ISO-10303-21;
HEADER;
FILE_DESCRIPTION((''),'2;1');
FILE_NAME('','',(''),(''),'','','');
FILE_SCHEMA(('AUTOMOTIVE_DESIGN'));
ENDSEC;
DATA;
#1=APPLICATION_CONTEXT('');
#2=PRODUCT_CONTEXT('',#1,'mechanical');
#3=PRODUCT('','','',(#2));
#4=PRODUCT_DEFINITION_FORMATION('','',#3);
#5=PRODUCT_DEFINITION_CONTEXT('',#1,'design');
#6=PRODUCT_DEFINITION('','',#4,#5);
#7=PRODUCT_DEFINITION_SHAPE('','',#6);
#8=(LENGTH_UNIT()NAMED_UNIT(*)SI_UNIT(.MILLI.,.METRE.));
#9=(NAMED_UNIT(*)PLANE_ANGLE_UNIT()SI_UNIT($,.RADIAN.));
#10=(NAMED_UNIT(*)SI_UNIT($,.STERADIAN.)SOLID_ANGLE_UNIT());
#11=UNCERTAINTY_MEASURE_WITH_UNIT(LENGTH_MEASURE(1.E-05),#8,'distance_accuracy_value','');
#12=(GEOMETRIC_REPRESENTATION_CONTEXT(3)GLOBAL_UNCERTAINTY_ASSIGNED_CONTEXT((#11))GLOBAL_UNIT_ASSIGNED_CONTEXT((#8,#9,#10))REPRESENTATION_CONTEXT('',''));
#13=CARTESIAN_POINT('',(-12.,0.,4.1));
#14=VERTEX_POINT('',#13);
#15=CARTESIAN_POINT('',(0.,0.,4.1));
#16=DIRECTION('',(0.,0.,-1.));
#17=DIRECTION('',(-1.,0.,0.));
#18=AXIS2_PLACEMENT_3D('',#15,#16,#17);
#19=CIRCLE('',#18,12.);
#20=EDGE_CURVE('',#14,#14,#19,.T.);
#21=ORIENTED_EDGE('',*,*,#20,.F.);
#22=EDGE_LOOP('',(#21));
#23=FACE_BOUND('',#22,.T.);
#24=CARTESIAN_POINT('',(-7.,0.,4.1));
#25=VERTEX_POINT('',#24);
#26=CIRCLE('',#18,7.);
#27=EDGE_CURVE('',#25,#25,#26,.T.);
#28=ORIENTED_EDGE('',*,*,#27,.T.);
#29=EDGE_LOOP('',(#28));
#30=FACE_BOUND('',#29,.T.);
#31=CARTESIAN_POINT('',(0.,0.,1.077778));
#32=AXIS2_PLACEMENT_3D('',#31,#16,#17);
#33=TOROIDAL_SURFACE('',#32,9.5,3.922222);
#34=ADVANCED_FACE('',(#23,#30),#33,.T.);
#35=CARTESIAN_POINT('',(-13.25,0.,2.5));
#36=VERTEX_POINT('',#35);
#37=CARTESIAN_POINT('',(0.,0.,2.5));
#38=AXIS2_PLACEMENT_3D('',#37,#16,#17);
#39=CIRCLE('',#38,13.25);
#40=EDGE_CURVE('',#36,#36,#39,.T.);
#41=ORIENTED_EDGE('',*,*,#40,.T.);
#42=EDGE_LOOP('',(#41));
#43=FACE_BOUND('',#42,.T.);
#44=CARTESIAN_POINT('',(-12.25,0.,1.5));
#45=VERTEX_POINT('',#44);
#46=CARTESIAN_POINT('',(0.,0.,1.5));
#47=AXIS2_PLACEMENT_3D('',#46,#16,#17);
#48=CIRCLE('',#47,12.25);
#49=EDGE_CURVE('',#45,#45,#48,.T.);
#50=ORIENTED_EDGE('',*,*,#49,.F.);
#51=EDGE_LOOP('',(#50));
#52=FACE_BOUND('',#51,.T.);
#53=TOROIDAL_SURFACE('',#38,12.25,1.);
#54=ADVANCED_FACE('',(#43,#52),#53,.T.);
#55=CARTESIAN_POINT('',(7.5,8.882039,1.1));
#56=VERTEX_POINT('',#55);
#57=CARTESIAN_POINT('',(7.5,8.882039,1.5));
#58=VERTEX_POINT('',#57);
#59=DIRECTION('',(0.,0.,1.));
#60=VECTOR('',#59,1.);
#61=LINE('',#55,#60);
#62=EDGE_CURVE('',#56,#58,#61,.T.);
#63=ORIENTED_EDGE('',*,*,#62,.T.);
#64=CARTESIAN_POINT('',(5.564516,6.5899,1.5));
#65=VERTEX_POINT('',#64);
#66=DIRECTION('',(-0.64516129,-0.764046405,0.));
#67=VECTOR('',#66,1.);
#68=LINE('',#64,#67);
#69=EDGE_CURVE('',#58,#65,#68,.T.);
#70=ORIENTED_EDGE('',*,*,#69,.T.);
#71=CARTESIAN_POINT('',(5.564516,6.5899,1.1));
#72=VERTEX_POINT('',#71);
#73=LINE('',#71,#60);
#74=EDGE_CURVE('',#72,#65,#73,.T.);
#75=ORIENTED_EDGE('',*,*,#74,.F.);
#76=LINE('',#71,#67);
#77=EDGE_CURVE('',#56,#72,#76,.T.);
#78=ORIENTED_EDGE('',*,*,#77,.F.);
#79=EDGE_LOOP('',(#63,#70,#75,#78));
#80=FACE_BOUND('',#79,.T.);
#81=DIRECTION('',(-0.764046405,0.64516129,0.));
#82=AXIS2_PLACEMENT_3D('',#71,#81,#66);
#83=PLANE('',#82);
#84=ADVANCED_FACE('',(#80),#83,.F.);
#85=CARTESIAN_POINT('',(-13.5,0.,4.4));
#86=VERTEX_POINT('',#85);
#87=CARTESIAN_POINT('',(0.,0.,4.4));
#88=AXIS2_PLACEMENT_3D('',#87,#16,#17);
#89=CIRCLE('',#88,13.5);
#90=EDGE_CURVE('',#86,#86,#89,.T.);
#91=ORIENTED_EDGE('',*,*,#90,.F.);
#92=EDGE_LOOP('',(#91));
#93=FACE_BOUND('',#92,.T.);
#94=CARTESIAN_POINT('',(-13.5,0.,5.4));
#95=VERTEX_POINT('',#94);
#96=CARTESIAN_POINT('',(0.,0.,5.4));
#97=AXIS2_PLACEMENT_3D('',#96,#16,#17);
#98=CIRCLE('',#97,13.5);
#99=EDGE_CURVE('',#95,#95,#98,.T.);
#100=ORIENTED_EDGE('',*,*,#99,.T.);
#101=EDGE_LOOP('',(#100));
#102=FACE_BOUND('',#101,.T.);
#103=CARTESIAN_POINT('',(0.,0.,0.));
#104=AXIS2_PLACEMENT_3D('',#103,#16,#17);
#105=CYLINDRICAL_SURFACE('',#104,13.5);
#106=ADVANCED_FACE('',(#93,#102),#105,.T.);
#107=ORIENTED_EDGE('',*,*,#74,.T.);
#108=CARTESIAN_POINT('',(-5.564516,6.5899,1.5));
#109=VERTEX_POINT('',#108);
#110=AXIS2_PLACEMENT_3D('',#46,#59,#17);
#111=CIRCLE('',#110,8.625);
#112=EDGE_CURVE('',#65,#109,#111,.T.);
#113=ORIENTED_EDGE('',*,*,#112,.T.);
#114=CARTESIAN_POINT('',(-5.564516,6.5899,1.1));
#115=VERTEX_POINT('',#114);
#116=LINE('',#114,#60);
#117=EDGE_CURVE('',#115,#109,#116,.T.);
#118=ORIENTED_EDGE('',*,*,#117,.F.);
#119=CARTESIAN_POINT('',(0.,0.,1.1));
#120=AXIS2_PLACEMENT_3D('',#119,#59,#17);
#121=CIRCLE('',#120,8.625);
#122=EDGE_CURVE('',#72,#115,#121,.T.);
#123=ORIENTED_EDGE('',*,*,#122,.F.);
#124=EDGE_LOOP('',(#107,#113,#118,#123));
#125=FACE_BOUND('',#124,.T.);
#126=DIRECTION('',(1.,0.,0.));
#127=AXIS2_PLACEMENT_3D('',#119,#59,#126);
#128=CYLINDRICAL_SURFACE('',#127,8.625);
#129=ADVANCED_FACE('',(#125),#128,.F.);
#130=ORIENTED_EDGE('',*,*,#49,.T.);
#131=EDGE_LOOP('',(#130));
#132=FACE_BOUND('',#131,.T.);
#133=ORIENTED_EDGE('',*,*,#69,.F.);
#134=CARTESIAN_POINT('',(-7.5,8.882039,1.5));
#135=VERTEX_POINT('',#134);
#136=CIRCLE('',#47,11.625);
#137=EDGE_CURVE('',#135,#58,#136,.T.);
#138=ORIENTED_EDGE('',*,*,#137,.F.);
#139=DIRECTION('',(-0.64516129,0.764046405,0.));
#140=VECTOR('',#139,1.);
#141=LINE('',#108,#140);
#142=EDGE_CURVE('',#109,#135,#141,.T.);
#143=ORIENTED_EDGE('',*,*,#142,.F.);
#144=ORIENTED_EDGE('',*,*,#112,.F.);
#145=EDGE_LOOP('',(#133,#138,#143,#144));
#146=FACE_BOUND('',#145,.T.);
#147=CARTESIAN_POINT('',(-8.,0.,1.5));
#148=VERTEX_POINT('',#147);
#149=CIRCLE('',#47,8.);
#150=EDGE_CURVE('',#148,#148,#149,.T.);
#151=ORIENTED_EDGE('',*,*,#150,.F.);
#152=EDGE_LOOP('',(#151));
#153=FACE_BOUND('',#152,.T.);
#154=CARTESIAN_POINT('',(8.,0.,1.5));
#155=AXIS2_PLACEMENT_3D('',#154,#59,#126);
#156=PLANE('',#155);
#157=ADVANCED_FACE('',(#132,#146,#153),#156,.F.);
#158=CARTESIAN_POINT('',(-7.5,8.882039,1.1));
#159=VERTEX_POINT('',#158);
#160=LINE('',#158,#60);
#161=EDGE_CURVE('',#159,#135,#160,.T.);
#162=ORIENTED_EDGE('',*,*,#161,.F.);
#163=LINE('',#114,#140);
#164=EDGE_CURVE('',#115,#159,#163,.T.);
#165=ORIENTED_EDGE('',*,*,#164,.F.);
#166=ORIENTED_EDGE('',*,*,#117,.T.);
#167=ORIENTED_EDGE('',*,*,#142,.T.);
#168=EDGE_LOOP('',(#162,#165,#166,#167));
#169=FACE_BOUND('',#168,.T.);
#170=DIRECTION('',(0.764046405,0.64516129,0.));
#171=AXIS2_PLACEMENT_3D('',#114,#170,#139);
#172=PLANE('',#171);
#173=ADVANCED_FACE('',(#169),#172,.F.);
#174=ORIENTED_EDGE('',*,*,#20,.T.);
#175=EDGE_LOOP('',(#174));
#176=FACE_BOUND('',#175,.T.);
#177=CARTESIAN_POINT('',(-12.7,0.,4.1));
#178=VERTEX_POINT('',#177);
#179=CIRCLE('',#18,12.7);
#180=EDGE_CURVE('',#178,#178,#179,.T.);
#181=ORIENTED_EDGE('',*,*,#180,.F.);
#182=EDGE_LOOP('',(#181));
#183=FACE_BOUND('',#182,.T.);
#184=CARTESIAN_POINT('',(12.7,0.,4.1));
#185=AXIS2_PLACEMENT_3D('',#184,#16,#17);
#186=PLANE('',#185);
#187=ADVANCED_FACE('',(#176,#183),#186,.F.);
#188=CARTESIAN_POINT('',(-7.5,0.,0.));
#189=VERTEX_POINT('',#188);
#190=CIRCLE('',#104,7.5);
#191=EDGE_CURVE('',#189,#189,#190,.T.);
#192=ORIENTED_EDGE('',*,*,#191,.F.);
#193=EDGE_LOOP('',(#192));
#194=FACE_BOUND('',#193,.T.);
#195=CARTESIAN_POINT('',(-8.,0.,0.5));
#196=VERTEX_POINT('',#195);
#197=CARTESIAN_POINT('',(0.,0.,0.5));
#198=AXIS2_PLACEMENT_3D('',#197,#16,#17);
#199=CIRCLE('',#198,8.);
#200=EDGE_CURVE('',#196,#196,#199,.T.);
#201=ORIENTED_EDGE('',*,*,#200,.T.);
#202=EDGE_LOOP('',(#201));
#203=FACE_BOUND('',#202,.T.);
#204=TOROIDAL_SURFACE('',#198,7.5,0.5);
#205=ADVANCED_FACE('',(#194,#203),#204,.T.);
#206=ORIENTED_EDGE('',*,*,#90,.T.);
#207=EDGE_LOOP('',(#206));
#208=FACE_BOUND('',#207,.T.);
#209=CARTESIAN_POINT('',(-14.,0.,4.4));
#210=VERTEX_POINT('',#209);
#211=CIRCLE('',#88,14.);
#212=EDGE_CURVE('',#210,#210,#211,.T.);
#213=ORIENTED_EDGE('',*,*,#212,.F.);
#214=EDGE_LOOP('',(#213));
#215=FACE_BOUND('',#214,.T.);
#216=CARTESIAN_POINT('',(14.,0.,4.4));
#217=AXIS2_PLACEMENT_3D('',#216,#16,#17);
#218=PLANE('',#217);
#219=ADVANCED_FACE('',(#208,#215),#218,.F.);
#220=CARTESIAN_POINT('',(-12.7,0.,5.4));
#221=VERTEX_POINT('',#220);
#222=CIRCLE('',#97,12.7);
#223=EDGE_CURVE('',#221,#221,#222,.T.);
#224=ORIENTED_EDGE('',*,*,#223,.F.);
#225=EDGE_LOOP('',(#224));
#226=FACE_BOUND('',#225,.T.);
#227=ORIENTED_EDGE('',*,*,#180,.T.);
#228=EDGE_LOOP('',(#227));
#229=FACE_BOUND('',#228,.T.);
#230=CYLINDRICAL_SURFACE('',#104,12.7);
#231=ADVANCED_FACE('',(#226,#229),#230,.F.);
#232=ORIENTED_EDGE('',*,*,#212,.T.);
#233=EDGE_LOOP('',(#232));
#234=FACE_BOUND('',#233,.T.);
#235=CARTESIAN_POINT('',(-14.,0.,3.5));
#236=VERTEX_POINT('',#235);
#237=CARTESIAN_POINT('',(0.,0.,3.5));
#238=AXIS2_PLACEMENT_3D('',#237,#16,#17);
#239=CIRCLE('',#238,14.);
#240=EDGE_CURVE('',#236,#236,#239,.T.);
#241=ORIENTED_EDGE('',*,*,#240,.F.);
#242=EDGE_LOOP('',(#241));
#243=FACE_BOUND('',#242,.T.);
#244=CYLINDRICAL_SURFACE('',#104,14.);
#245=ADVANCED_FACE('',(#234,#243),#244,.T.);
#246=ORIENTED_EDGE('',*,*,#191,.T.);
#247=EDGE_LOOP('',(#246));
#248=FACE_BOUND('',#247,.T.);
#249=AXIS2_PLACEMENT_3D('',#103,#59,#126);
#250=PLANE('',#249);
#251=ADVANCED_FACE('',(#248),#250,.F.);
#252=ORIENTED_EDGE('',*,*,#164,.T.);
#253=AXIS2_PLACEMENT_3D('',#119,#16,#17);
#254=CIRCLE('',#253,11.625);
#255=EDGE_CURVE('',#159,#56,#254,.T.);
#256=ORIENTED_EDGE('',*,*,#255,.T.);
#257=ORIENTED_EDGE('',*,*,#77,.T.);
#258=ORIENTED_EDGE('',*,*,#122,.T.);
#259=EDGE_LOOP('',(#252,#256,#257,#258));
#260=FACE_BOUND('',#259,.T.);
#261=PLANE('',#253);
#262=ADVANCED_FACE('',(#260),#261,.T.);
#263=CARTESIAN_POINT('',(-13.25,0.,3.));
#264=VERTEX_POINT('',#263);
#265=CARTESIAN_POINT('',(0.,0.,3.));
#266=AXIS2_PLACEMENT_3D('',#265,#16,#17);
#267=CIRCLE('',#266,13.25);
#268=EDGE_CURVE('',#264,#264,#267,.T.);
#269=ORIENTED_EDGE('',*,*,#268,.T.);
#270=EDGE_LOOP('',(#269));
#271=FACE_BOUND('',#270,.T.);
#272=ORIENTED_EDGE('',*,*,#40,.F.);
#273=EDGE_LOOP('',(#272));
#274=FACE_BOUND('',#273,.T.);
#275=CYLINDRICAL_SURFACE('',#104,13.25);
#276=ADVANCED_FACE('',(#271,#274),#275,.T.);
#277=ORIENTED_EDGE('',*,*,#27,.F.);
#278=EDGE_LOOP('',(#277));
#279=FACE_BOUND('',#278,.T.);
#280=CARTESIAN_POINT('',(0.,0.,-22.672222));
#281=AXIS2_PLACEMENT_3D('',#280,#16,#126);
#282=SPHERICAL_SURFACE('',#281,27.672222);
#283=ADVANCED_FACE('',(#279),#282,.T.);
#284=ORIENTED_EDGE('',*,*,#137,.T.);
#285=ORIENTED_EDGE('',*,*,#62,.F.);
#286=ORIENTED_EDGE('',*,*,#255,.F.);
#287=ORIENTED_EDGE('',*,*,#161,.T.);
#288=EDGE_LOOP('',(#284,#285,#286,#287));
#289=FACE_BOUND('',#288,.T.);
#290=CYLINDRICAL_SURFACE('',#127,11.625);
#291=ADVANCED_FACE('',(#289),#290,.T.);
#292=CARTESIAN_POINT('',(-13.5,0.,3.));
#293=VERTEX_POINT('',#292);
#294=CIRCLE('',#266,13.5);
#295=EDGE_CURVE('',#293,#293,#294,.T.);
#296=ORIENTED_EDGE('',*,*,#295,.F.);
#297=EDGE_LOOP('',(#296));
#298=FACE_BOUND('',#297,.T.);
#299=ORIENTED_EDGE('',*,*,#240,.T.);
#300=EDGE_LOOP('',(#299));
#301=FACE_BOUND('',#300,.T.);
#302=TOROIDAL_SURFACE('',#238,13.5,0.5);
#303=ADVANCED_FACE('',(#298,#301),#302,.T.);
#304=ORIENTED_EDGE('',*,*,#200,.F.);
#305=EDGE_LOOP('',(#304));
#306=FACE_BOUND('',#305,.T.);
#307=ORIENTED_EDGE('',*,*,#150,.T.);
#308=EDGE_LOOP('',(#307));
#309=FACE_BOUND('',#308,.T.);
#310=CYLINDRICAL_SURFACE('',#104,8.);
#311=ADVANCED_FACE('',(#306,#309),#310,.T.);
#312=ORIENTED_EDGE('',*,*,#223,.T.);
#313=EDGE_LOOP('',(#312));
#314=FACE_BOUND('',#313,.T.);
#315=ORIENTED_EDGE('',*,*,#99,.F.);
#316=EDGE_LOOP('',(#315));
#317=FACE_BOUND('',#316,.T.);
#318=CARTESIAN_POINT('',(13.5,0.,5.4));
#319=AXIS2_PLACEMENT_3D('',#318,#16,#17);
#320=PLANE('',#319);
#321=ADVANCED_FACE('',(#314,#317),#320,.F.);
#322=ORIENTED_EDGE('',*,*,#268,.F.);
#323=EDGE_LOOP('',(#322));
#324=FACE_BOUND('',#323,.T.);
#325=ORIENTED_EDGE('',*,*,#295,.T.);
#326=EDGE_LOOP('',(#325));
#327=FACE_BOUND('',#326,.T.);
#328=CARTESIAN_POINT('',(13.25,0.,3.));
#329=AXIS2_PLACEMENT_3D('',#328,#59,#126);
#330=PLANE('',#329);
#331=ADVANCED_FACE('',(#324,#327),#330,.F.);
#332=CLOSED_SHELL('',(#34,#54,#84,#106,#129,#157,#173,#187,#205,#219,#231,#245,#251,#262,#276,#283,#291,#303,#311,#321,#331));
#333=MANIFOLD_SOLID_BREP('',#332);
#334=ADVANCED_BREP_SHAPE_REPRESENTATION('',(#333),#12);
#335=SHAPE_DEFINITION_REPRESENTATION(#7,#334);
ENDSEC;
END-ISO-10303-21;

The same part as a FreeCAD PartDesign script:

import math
import FreeCAD as App
import Part
import Sketcher
from FreeCAD import Vector
Q = App.Units.Quantity

doc = App.newDocument("Part")
body = doc.addObject("PartDesign::Body", "Body")

sketch1 = body.newObject("Sketcher::SketchObject", "Sketch")
sketch1.AttachmentSupport = (doc.getObject("XZ_Plane"), [""])
sketch1.MapMode = "FlatFace"
sketch1.addGeometry([
    Part.LineSegment(Vector(7.5, 0, 0), Vector(0, 0, 0)),
    Part.LineSegment(Vector(0, 0, 0), Vector(0, 5, 0)),
    Part.ArcOfCircle(Part.Circle(Vector(0, -22.67, 0), Vector(0, 0, 1), 27.67), math.radians(75.35), math.radians(90)),
    Part.ArcOfCircle(Part.Circle(Vector(9.5, 1.08, 0), Vector(0, 0, 1), 3.92), math.radians(50), math.radians(130)),
    Part.LineSegment(Vector(12, 4.1, 0), Vector(12.7, 4.1, 0)),
    Part.LineSegment(Vector(12.7, 4.1, 0), Vector(12.7, 5.4, 0)),
    Part.LineSegment(Vector(12.7, 5.4, 0), Vector(13.5, 5.4, 0)),
    Part.LineSegment(Vector(13.5, 5.4, 0), Vector(13.5, 4.4, 0)),
    Part.LineSegment(Vector(13.5, 4.4, 0), Vector(14, 4.4, 0)),
    Part.LineSegment(Vector(14, 4.4, 0), Vector(14, 3.5, 0)),
    Part.ArcOfCircle(Part.Circle(Vector(13.5, 3.5, 0), Vector(0, 0, 1), 0.5), math.radians(-90), math.radians(0)),
    Part.LineSegment(Vector(13.5, 3, 0), Vector(13.25, 3, 0)),
    Part.LineSegment(Vector(13.25, 3, 0), Vector(13.25, 2.5, 0)),
    Part.ArcOfCircle(Part.Circle(Vector(12.25, 2.5, 0), Vector(0, 0, 1), 1), math.radians(-90), math.radians(0)),
    Part.LineSegment(Vector(12.25, 1.5, 0), Vector(8, 1.5, 0)),
    Part.LineSegment(Vector(8, 1.5, 0), Vector(8, 0.5, 0)),
    Part.ArcOfCircle(Part.Circle(Vector(7.5, 0.5, 0), Vector(0, 0, 1), 0.5), math.radians(-90), math.radians(0)),
], False)
sketch1.addConstraint([
    Sketcher.Constraint("Coincident", 0, 2, 1, 1),
    Sketcher.Constraint("Coincident", 1, 2, 2, 2),
    Sketcher.Constraint("Coincident", 2, 1, 3, 2),
    Sketcher.Constraint("Coincident", 3, 1, 4, 1),
    Sketcher.Constraint("Coincident", 4, 2, 5, 1),
    Sketcher.Constraint("Coincident", 5, 2, 6, 1),
    Sketcher.Constraint("Coincident", 6, 2, 7, 1),
    Sketcher.Constraint("Coincident", 7, 2, 8, 1),
    Sketcher.Constraint("Coincident", 8, 2, 9, 1),
    Sketcher.Constraint("Tangent", 9, 2, 10, 2),
    Sketcher.Constraint("Tangent", 10, 1, 11, 1),
    Sketcher.Constraint("Coincident", 11, 2, 12, 1),
    Sketcher.Constraint("Tangent", 12, 2, 13, 2),
    Sketcher.Constraint("Tangent", 13, 1, 14, 1),
    Sketcher.Constraint("Coincident", 14, 2, 15, 1),
    Sketcher.Constraint("Tangent", 15, 2, 16, 2),
    Sketcher.Constraint("Tangent", 16, 1, 0, 1),
    Sketcher.Constraint("Horizontal", 0),
    Sketcher.Constraint("Vertical", 1),
    Sketcher.Constraint("Horizontal", 4),
    Sketcher.Constraint("Vertical", 5),
    Sketcher.Constraint("Horizontal", 6),
    Sketcher.Constraint("Vertical", 7),
    Sketcher.Constraint("Horizontal", 8),
    Sketcher.Constraint("Vertical", 9),
    Sketcher.Constraint("Horizontal", 11),
    Sketcher.Constraint("Vertical", 12),
    Sketcher.Constraint("Horizontal", 14),
    Sketcher.Constraint("Vertical", 15),
    Sketcher.Constraint("Coincident", 0, 2, -1, 1),
    Sketcher.Constraint("Equal", 10, 16),
    Sketcher.Constraint("PointOnObject", 2, 3, -2),
    Sketcher.Constraint("Horizontal", 2, 1, 3, 1),
    Sketcher.Constraint("Vertical", 10, 3, 6, 2),
    Sketcher.Constraint("Equal", 8, 12),
    Sketcher.Constraint("Equal", 7, 15),
    Sketcher.Constraint("Radius", 13, Q("1 mm")),
    Sketcher.Constraint("Radius", 10, Q("0.5 mm")),
    Sketcher.Constraint("DistanceY", 1, 1, 1, 2, Q("5 mm")),
    Sketcher.Constraint("DistanceY", 7, 2, 7, 1, Q("1 mm")),
    Sketcher.Constraint("DistanceX", 0, 2, 0, 1, Q("7.5 mm")),
    Sketcher.Constraint("DistanceX", 4, 1, 4, 2, Q("0.7 mm")),
    Sketcher.Constraint("DistanceX", 6, 1, 6, 2, Q("0.8 mm")),
    Sketcher.Constraint("DistanceY", 5, 1, 5, 2, Q("1.3 mm")),
    Sketcher.Constraint("DistanceY", 9, 2, 9, 1, Q("0.9 mm")),
    Sketcher.Constraint("DistanceX", -1, 1, 2, 1, Q("7 mm")),
    Sketcher.Constraint("DistanceX", -1, 1, 3, 1, Q("12 mm")),
    Sketcher.Constraint("DistanceX", 11, 2, 11, 1, Q("0.25 mm")),
    Sketcher.Constraint("DistanceY", 2, 3, 3, 3, Q("23.75 mm")),
])
revolution = body.newObject("PartDesign::Revolution", "Revolution")
revolution.Profile = sketch1
revolution.ReferenceAxis = (sketch1, ["V_Axis"])
revolution.Angle = 360

sketch2 = body.newObject("Sketcher::SketchObject", "Sketch001")
sketch2.AttachmentSupport = (doc.getObject("XY_Plane"), [""])
sketch2.MapMode = "FlatFace"
sketch2.AttachmentOffset = App.Placement(Vector(0, 0, 1.5), App.Rotation())
sketch2.addGeometry([
    Part.LineSegment(Vector(7.5, 8.9, 0), Vector(5.6, 6.6, 0)),
    Part.ArcOfCircle(Part.Circle(Vector(0, 0, 0), Vector(0, 0, 1), 8.6), math.radians(50), math.radians(130)),
    Part.LineSegment(Vector(-5.6, 6.6, 0), Vector(-7.5, 8.9, 0)),
    Part.ArcOfCircle(Part.Circle(Vector(0, 0, 0), Vector(0, 0, 1), 11.6), math.radians(50), math.radians(130)),
], False)
sketch2.addConstraint([
    Sketcher.Constraint("Coincident", 0, 2, 1, 1),
    Sketcher.Constraint("Coincident", 1, 2, 2, 1),
    Sketcher.Constraint("Coincident", 2, 2, 3, 2),
    Sketcher.Constraint("Coincident", 3, 1, 0, 1),
    Sketcher.Constraint("Coincident", 1, 3, -1, 1),
    Sketcher.Constraint("Coincident", 3, 3, -1, 1),
    Sketcher.Constraint("Horizontal", 0, 2, 1, 2),
    Sketcher.Constraint("Horizontal", 2, 2, 3, 1),
    Sketcher.Constraint("Distance", 0, Q("3 mm")),
    Sketcher.Constraint("Radius", 1, Q("8.625 mm")),
    Sketcher.Constraint("DistanceX", 2, 2, 3, 1, Q("15 mm")),
    Sketcher.Constraint("DistanceY", -1, 1, 0, 2, Q("6.5899 mm")),
])
pad1 = body.newObject("PartDesign::Pad", "Pad")
pad1.Profile = sketch2
pad1.Length = 0.4
pad1.Reversed = True

doc.recompute()
